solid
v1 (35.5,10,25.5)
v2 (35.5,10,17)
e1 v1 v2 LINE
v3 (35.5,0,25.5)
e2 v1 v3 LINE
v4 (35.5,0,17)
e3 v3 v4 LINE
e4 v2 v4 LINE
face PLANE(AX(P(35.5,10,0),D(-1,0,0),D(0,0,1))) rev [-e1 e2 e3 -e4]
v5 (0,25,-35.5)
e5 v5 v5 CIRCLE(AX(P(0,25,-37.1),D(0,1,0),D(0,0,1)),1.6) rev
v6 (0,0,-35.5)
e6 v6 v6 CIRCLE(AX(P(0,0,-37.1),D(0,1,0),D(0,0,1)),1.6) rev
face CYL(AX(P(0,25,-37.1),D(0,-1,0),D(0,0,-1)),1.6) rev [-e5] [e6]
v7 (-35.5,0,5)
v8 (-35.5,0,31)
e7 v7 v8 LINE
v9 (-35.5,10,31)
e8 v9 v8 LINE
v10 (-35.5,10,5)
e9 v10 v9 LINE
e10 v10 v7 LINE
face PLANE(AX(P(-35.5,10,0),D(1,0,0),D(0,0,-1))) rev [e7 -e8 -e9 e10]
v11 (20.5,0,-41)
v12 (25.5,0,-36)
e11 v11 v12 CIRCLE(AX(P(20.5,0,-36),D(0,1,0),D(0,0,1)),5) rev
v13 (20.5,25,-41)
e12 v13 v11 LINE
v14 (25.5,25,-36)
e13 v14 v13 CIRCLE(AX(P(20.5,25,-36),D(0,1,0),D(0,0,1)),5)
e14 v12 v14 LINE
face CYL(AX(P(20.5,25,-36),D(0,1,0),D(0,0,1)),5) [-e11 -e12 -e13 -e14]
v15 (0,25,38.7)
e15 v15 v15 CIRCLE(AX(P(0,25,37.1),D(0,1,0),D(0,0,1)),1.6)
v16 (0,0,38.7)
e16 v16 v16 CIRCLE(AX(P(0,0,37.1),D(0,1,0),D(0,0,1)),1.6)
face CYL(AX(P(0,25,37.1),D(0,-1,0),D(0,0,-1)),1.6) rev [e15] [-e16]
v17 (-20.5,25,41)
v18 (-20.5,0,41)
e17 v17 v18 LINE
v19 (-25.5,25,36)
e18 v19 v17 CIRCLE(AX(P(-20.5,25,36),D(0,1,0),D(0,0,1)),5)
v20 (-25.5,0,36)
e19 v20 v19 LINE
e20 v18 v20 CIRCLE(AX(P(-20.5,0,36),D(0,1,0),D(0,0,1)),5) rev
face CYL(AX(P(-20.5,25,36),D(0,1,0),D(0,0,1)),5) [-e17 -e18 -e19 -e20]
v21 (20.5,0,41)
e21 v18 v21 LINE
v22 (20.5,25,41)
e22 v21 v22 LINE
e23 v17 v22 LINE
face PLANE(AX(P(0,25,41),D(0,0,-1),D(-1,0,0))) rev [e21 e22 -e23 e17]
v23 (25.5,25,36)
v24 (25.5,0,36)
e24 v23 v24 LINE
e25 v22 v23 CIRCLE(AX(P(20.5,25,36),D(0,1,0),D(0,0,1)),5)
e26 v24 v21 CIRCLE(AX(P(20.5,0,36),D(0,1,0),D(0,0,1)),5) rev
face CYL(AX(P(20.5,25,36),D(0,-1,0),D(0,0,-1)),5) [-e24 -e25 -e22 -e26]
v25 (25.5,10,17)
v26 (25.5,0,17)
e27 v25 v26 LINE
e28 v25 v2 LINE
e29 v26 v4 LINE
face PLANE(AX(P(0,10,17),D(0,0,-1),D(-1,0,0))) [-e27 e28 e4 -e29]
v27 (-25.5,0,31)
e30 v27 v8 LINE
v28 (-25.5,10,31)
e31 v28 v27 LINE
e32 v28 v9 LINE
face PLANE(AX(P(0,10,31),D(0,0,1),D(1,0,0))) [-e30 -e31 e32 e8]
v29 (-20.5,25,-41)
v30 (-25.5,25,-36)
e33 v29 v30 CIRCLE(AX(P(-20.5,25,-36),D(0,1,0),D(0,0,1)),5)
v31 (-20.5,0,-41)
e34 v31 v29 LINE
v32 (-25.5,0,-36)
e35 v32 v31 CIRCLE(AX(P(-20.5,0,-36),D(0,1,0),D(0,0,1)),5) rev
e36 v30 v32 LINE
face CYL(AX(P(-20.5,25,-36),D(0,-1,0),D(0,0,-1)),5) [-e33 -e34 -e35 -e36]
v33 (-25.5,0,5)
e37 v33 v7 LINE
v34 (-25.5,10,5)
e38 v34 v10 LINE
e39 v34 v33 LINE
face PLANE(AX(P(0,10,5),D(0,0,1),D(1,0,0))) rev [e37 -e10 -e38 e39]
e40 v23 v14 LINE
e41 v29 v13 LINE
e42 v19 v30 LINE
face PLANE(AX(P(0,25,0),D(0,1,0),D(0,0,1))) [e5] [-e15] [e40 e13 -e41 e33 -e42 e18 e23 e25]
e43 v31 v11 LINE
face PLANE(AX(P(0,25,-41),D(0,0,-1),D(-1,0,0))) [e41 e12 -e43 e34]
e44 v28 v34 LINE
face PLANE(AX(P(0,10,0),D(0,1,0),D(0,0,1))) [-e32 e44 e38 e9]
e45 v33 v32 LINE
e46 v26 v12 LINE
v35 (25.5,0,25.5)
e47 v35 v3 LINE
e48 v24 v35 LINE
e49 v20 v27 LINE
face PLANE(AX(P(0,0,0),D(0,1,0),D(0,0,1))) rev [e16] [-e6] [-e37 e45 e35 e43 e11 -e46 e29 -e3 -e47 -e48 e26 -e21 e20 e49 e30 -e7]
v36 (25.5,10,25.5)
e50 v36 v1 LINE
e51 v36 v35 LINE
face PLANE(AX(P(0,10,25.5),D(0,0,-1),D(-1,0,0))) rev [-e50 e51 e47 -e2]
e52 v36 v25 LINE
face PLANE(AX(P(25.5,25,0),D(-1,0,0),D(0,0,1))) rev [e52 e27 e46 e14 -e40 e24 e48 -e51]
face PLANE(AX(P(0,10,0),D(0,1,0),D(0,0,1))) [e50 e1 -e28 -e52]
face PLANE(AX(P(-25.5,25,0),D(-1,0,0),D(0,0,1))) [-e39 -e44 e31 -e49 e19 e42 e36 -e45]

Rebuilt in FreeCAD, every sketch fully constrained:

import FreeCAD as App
import Part
import Sketcher
Q = App.Units.Quantity


def edges_at(feature, points):
    """Names of the edges that pass closest to the given points."""
    edges = feature.Shape.Edges
    near = lambda p: min(range(len(edges)), key=lambda i: edges[i].distToShape(Part.Vertex(*p))[0])
    return sorted({f"Edge{near(p) + 1}" for p in points})


def add_polygon(sketch, points):
    """Adds a closed chain of lines whose ends are joined by coincident constraints."""
    first, n = sketch.GeometryCount, len(points)
    for a, b in zip(points, points[1:] + points[:1]):
        sketch.addGeometry(Part.LineSegment(App.Vector(*a, 0), App.Vector(*b, 0)), False)
    for i in range(n):
        sketch.addConstraint(Sketcher.Constraint("Coincident", first + i, 2, first + (i + 1) % n, 1))

doc = App.newDocument("Part")
body = doc.addObject("PartDesign::Body", "Body")

sketch1 = body.newObject("Sketcher::SketchObject", "Sketch")
sketch1.AttachmentSupport = (doc.getObject("XZ_Plane"), [""])
sketch1.MapMode = "FlatFace"
add_polygon(sketch1, [(-25.5, -41), (-25.5, 41), (25.5, 41), (25.5, -41)])
sketch1.addGeometry(Part.Circle(App.Vector(0, 37.1, 0), App.Vector(0, 0, 1), 1.6), False)
sketch1.addGeometry(Part.Circle(App.Vector(0, -37.1, 0), App.Vector(0, 0, 1), 1.6), False)
sketch1.addConstraint(Sketcher.Constraint("Vertical", 0))
sketch1.addConstraint(Sketcher.Constraint("Horizontal", 1))
sketch1.addConstraint(Sketcher.Constraint("Vertical", 2))
sketch1.addConstraint(Sketcher.Constraint("Horizontal", 3))
sketch1.addConstraint(Sketcher.Constraint("Equal", 4, 5))
sketch1.addConstraint(Sketcher.Constraint("Symmetric", 4, 3, 5, 3, -1, 1))
sketch1.addConstraint(Sketcher.Constraint("Symmetric", 0, 2, 2, 2, -1, 1))
sketch1.addConstraint(Sketcher.Constraint("PointOnObject", 4, 3, -2))
sketch1.addConstraint(Sketcher.Constraint("Diameter", 4, Q("3.2 mm")))
sketch1.addConstraint(Sketcher.Constraint("DistanceX", 1, 1, 1, 2, Q("51 mm")))
sketch1.addConstraint(Sketcher.Constraint("DistanceY", 0, 1, 0, 2, Q("82 mm")))
sketch1.addConstraint(Sketcher.Constraint("DistanceY", -1, 1, 4, 3, Q("37.1 mm")))
pad1 = body.newObject("PartDesign::Pad", "Pad")
pad1.Profile = sketch1
pad1.Length = 25
pad1.Reversed = True

sketch2 = body.newObject("Sketcher::SketchObject", "Sketch001")
sketch2.AttachmentSupport = (doc.getObject("XZ_Plane"), [""])
sketch2.MapMode = "FlatFace"
add_polygon(sketch2, [(26, 17), (26, 26), (36, 26), (36, 17)])
add_polygon(sketch2, [(-36, 5), (-36, 31), (-26, 31), (-26, 5)])
sketch2.addConstraint(Sketcher.Constraint("Vertical", 0))
sketch2.addConstraint(Sketcher.Constraint("Horizontal", 1))
sketch2.addConstraint(Sketcher.Constraint("Vertical", 2))
sketch2.addConstraint(Sketcher.Constraint("Horizontal", 3))
sketch2.addConstraint(Sketcher.Constraint("Vertical", 4))
sketch2.addConstraint(Sketcher.Constraint("Horizontal", 5))
sketch2.addConstraint(Sketcher.Constraint("Vertical", 6))
sketch2.addConstraint(Sketcher.Constraint("Horizontal", 7))
sketch2.addConstraint(Sketcher.Constraint("Equal", 3, 5))
sketch2.addConstraint(Sketcher.Constraint("DistanceX", 1, 1, 1, 2, Q("10 mm")))
sketch2.addConstraint(Sketcher.Constraint("DistanceY", 4, 1, 4, 2, Q("26 mm")))
sketch2.addConstraint(Sketcher.Constraint("DistanceY", 0, 1, 0, 2, Q("8.5 mm")))
sketch2.addConstraint(Sketcher.Constraint("DistanceY", -1, 1, 2, 2, Q("17 mm")))
sketch2.addConstraint(Sketcher.Constraint("DistanceY", -1, 1, 4, 2, Q("31 mm")))
sketch2.addConstraint(Sketcher.Constraint("DistanceX", 4, 2, 0, 2, Q("61 mm")))
sketch2.addConstraint(Sketcher.Constraint("DistanceX", -1, 1, 0, 2, Q("25.5 mm")))
pad2 = body.newObject("PartDesign::Pad", "Pad001")
pad2.Profile = sketch2
pad2.Length = 10
pad2.Reversed = True
doc.recompute()

fillet = body.newObject("PartDesign::Fillet", "Fillet")
fillet.Base = (pad2, edges_at(pad2, [
    (-25.5, 12.5, 41),
    (-25.5, 12.5, -41),
    (25.5, 12.5, -41),
    (25.5, 12.5, 41),
]))
fillet.Radius = 5

doc.recompute()
